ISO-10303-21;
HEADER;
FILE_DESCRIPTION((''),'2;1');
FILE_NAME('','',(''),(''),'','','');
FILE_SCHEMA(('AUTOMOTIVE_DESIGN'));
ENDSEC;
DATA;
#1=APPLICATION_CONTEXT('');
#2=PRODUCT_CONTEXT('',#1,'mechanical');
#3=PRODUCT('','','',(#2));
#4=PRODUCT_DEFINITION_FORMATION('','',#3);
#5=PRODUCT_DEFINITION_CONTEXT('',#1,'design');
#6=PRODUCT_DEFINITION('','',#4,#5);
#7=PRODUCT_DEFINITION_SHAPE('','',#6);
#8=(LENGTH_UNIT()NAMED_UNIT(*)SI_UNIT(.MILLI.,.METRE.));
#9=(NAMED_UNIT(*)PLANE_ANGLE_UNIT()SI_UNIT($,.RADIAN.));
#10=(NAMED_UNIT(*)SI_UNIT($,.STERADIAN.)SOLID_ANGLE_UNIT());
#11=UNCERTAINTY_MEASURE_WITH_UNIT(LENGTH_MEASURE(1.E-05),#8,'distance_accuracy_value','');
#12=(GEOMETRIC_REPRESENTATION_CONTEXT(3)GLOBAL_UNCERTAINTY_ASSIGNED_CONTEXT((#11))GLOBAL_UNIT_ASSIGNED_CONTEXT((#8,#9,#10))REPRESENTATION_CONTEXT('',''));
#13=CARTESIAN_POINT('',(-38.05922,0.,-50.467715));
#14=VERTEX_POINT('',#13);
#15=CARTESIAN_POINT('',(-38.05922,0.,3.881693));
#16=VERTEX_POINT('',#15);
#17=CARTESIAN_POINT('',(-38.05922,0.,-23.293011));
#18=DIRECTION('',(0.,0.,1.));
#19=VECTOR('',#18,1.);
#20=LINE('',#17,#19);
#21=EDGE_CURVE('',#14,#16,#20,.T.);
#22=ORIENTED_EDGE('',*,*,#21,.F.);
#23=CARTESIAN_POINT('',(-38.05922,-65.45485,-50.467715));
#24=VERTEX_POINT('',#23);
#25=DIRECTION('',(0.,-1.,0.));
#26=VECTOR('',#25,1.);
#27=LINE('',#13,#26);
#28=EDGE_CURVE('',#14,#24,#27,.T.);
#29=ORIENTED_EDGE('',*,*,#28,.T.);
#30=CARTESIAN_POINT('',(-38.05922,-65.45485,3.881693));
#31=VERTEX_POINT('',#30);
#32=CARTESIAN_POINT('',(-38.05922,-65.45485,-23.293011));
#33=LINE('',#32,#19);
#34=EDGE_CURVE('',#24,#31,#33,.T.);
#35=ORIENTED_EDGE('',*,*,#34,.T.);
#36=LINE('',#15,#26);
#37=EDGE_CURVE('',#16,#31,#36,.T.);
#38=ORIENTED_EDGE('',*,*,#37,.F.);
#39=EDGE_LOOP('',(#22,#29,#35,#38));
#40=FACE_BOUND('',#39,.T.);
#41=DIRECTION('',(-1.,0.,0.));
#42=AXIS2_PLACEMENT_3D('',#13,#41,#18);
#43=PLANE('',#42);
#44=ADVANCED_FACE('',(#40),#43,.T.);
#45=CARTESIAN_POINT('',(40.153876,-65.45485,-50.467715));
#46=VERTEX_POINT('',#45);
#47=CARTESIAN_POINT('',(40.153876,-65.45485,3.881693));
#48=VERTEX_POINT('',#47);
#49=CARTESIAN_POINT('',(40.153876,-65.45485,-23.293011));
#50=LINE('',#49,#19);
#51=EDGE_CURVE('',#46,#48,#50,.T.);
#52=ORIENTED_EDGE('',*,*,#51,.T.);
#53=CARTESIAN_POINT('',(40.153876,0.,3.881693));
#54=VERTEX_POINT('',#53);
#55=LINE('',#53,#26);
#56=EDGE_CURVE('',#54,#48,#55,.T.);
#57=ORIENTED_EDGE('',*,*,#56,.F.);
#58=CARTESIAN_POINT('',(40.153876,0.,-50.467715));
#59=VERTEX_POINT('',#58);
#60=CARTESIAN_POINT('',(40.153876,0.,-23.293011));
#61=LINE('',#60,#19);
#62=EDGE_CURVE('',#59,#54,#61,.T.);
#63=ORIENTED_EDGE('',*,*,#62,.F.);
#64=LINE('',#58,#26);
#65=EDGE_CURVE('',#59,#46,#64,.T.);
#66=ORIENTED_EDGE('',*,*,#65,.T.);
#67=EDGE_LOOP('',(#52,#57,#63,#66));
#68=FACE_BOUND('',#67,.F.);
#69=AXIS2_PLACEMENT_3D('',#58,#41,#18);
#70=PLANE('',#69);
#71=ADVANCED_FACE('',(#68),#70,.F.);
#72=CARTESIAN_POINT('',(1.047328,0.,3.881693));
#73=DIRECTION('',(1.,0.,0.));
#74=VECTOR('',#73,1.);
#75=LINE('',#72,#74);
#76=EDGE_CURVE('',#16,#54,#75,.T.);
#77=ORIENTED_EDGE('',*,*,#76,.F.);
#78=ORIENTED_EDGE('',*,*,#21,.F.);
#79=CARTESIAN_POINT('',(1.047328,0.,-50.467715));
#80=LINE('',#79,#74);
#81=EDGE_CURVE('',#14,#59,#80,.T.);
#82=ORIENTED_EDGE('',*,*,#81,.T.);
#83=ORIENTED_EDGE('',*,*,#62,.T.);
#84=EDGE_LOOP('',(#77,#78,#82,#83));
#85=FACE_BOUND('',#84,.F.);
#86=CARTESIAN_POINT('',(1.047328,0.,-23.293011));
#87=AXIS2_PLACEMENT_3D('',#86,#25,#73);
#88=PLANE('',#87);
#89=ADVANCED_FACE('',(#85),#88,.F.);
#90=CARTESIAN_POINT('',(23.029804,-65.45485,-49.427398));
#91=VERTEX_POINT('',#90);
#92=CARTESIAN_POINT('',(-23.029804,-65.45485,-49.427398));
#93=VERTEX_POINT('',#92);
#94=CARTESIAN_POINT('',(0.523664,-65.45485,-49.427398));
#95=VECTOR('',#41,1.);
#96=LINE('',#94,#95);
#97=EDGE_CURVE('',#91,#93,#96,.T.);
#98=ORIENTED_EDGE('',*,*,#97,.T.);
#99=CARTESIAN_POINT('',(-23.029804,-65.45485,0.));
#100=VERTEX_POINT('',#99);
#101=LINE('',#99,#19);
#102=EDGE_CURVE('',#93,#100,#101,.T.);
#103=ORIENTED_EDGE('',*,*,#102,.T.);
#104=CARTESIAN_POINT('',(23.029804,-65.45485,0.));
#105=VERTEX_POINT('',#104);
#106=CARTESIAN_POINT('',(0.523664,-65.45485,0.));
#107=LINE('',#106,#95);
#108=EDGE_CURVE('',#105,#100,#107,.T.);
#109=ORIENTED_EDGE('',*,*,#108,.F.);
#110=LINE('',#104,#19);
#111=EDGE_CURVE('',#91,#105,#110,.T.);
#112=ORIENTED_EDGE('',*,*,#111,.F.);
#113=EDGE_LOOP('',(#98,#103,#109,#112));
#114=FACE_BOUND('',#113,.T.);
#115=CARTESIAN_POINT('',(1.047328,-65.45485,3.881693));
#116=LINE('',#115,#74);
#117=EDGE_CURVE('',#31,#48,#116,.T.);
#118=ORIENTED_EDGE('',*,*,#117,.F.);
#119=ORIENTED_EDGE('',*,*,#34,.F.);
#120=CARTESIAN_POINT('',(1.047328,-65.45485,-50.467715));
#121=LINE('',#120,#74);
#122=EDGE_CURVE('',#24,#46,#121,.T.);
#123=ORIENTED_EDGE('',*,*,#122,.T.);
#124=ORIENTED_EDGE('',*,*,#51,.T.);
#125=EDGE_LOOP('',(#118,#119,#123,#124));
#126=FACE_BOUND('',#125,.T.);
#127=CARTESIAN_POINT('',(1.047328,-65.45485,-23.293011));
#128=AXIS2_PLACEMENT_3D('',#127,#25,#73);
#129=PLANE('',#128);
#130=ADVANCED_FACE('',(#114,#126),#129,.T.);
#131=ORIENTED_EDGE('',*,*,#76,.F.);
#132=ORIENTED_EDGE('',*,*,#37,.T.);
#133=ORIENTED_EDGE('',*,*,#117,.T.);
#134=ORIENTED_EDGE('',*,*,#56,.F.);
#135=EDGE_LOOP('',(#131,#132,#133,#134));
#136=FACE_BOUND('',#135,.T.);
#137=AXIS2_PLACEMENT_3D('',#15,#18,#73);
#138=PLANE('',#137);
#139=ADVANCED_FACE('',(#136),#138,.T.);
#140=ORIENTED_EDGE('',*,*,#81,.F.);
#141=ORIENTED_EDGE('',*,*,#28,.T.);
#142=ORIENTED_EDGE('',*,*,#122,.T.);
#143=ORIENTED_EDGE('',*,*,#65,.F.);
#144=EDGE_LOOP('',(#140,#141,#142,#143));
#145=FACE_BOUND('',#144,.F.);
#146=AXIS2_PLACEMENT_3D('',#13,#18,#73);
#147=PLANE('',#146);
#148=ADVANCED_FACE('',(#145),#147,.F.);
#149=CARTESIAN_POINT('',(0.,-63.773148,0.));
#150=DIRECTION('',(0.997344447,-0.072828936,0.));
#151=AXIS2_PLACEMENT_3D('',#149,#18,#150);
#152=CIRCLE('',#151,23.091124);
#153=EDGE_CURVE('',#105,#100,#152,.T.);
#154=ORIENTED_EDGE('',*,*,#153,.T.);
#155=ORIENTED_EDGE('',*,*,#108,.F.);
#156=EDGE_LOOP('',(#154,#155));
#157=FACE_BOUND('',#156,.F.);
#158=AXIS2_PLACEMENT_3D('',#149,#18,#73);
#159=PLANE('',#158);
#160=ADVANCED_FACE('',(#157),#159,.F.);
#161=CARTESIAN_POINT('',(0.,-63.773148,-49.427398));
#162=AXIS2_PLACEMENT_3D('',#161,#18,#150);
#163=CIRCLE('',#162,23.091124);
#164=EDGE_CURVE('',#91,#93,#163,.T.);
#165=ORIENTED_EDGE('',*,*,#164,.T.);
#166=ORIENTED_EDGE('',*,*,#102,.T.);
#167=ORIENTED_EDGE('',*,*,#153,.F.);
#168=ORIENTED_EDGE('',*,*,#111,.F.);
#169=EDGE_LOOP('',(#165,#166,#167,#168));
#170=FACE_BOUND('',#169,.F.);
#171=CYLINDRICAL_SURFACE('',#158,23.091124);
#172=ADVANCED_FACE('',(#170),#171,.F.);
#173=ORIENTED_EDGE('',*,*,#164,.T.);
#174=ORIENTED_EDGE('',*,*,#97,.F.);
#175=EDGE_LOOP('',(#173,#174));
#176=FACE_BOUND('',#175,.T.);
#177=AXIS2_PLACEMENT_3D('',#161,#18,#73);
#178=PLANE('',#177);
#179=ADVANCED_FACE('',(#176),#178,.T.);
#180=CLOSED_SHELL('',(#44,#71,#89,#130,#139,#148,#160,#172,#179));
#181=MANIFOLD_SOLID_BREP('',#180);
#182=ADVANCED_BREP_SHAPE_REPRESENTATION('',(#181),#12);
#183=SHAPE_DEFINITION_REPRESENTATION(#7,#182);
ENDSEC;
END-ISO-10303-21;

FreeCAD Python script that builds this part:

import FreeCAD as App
import Part
import Sketcher


def add_polygon(sketch, points):
    """Adds a closed chain of lines whose ends are joined by coincident constraints."""
    first, n = sketch.GeometryCount, len(points)
    for a, b in zip(points, points[1:] + points[:1]):
        sketch.addGeometry(Part.LineSegment(App.Vector(*a, 0), App.Vector(*b, 0)), False)
    for i in range(n):
        sketch.addConstraint(Sketcher.Constraint("Coincident", first + i, 2, first + (i + 1) % n, 1))

doc = App.newDocument("Part")
body = doc.addObject("PartDesign::Body", "Body")

# Sketch on XZ plane
sketch1 = body.newObject("Sketcher::SketchObject", "Sketch")
sketch1.AttachmentSupport = (doc.getObject("XZ_Plane"), [""])
sketch1.MapMode = "FlatFace"
add_polygon(sketch1, [(-38, 4), (-38, -50), (40, -50), (40, 4)])  # lines 0-3
sketch1.addConstraint(Sketcher.Constraint("Vertical", 0))
sketch1.addConstraint(Sketcher.Constraint("Horizontal", 1))
sketch1.addConstraint(Sketcher.Constraint("Vertical", 2))
sketch1.addConstraint(Sketcher.Constraint("Horizontal", 3))
sketch1.addConstraint(Sketcher.Constraint("DistanceX", 1, 1, 1, 2, 78.213096))
sketch1.addConstraint(Sketcher.Constraint("DistanceY", 0, 2, 0, 1, 54.349408))
sketch1.addConstraint(Sketcher.Constraint("DistanceX", 0, 2, -1, 1, 38.05922))
sketch1.addConstraint(Sketcher.Constraint("DistanceY", 0, 2, -1, 1, 50.467715))
pad1 = body.newObject("PartDesign::Pad", "Pad")
pad1.Profile = sketch1
pad1.Length = 65.45485

# Sketch on XY plane
sketch2 = body.newObject("Sketcher::SketchObject", "Sketch001")
sketch2.AttachmentSupport = (doc.getObject("XY_Plane"), [""])
sketch2.MapMode = "FlatFace"
sketch2.addGeometry(Part.Circle(App.Vector(0, -64, 0), App.Vector(0, 0, 1), 23), False)
sketch2.addConstraint(Sketcher.Constraint("PointOnObject", 0, 3, -2))
sketch2.addConstraint(Sketcher.Constraint("Diameter", 0, 46.182248))
sketch2.addConstraint(Sketcher.Constraint("DistanceY", 0, 3, -1, 1, 63.773148))
pocket1 = body.newObject("PartDesign::Pocket", "Pocket")
pocket1.Profile = sketch2
pocket1.Length = 49.427398

doc.recompute()
